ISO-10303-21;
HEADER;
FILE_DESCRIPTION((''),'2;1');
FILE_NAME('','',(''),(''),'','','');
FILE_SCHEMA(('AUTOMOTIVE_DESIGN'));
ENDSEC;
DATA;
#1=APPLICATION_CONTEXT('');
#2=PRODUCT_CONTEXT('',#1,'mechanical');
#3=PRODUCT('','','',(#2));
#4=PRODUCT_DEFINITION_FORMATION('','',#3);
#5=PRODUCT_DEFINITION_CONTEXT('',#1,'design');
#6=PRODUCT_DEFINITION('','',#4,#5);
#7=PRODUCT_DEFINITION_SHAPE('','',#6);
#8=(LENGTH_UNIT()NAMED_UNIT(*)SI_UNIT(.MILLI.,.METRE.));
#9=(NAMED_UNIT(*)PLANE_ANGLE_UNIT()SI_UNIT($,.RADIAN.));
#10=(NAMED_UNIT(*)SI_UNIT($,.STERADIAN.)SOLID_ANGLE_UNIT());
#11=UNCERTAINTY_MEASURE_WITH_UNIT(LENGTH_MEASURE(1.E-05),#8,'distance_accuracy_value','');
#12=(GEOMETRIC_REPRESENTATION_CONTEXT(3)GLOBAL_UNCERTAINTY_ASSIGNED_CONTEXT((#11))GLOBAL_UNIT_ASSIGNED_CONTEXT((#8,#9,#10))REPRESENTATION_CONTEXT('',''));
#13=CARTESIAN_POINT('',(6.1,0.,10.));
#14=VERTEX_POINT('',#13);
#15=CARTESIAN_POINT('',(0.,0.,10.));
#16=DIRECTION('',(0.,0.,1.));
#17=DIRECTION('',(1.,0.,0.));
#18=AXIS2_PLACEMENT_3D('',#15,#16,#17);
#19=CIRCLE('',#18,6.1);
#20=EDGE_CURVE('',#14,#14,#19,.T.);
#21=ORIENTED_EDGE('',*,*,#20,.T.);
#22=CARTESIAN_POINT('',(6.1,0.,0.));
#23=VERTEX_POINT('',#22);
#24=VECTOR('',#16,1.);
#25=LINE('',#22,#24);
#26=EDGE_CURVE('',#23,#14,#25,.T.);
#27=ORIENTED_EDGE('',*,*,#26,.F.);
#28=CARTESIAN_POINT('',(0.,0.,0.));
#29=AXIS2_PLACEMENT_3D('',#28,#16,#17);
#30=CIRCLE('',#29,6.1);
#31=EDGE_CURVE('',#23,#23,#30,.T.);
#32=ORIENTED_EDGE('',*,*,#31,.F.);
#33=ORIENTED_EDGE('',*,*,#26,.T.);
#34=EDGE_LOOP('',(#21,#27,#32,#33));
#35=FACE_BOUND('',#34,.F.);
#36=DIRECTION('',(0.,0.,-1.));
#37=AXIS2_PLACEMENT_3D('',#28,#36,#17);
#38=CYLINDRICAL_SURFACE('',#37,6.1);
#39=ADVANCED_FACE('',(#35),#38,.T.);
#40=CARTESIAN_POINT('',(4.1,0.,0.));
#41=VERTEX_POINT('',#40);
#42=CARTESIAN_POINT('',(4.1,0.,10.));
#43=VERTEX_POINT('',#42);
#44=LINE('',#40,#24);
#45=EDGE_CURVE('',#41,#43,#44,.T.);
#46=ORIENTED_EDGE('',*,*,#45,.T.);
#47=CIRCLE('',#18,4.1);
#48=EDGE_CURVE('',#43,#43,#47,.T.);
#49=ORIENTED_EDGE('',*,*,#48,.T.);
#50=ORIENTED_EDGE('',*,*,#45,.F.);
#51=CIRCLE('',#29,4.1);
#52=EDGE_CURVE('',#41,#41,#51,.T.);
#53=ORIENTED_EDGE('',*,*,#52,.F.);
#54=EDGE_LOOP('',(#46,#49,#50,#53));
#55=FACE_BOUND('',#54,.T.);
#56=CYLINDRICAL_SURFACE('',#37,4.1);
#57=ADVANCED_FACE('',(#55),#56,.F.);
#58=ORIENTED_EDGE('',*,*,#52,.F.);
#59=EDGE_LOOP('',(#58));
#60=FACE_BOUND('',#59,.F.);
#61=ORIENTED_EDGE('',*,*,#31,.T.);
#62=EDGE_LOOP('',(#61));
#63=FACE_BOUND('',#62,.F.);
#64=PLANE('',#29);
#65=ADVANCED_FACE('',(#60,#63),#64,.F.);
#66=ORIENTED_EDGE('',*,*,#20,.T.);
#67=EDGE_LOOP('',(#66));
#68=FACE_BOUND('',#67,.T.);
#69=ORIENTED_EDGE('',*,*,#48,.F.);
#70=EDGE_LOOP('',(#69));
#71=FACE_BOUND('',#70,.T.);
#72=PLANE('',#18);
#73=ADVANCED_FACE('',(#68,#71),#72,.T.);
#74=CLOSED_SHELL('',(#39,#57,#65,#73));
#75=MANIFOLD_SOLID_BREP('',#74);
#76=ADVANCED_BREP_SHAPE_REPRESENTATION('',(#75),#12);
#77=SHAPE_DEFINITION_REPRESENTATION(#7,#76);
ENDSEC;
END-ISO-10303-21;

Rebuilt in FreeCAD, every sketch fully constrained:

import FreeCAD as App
import Part
import Sketcher
from FreeCAD import Vector
Q = App.Units.Quantity

doc = App.newDocument("Part")
params = doc.addObject("Spreadsheet::Sheet", "Params")
for row, (alias, value) in enumerate([
    ("sketch1_diameter", "12.2 mm"),
    ("pad1_length", "10 mm"),
    ("sketch2_diameter", "8.2 mm"),
    ("pocket1_length", "10 mm"),
], start=1):
    params.set(f"A{row}", alias)
    params.set(f"B{row}", "=" + value)
    params.setAlias(f"B{row}", alias)

body = doc.addObject("PartDesign::Body", "Body")

sketch1 = body.newObject("Sketcher::SketchObject", "Sketch")
sketch1.AttachmentSupport = (doc.getObject("XY_Plane"), [""])
sketch1.MapMode = "FlatFace"
sketch1.addGeometry(Part.Circle(Vector(0, 0, 0), Vector(0, 0, 1), 6), False)
sketch1.addConstraint([
    Sketcher.Constraint("Coincident", 0, 3, -1, 1),
    Sketcher.Constraint("Diameter", 0, Q("12.2 mm")),
])
sketch1.setExpression("Constraints[1]", "Params.sketch1_diameter")
pad1 = body.newObject("PartDesign::Pad", "Pad")
pad1.Profile = sketch1
pad1.setExpression("Length", "Params.pad1_length")

sketch2 = body.newObject("Sketcher::SketchObject", "Sketch001")
sketch2.AttachmentSupport = (doc.getObject("XY_Plane"), [""])
sketch2.MapMode = "FlatFace"
sketch2.addGeometry(Part.Circle(Vector(0, 0, 0), Vector(0, 0, 1), 4.1), False)
sketch2.addConstraint([
    Sketcher.Constraint("Coincident", 0, 3, -1, 1),
    Sketcher.Constraint("Diameter", 0, Q("8.2 mm")),
])
sketch2.setExpression("Constraints[1]", "Params.sketch2_diameter")
pocket1 = body.newObject("PartDesign::Pocket", "Pocket")
pocket1.Profile = sketch2
pocket1.setExpression("Length", "Params.pocket1_length")
pocket1.Reversed = True

doc.recompute()
